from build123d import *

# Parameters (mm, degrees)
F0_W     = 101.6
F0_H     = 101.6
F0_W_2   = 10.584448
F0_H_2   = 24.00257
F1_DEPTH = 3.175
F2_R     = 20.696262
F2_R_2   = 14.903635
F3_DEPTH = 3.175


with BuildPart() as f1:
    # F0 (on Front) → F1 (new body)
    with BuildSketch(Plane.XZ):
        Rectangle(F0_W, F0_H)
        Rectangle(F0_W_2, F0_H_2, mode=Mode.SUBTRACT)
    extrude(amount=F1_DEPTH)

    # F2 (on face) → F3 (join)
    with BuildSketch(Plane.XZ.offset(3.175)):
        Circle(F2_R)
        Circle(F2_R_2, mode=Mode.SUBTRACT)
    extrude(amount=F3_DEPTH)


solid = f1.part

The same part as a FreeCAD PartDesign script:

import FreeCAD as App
import Part
import Sketcher

V = App.Vector
Q = App.Units.Quantity


def add_polygon(sketch, points):
    """Adds a closed chain of lines whose ends are joined by coincident constraints."""
    first, n = sketch.GeometryCount, len(points)
    for a, b in zip(points, points[1:] + points[:1]):
        sketch.addGeometry(Part.LineSegment(App.Vector(*a, 0), App.Vector(*b, 0)), False)
    for i in range(n):
        sketch.addConstraint(Sketcher.Constraint("Coincident", first + i, 2, first + (i + 1) % n, 1))

doc = App.newDocument("Part")
body = doc.addObject("PartDesign::Body", "Body")

sketch1 = body.newObject("Sketcher::SketchObject", "Sketch")
sketch1.AttachmentSupport = (doc.getObject("XZ_Plane"), [""])
sketch1.MapMode = "FlatFace"
add_polygon(sketch1, [(-51, 51), (-51, -51), (51, -51), (51, 51)])
add_polygon(sketch1, [(5, -12), (-5, -12), (-5, 12), (5, 12)])
sketch1.addConstraint([
    Sketcher.Constraint("Vertical", 0),
    Sketcher.Constraint("Horizontal", 1),
    Sketcher.Constraint("Vertical", 2),
    Sketcher.Constraint("Horizontal", 3),
    Sketcher.Constraint("Horizontal", 4),
    Sketcher.Constraint("Vertical", 5),
    Sketcher.Constraint("Horizontal", 6),
    Sketcher.Constraint("Vertical", 7),
    Sketcher.Constraint("Symmetric", 0, 2, 2, 2, -1, 1),
    Sketcher.Constraint("Symmetric", 4, 2, 6, 2, -1, 1),
    Sketcher.Constraint("Equal", 3, 0),
    Sketcher.Constraint("DistanceX", 1, 1, 1, 2, Q("4 in")),
    Sketcher.Constraint("DistanceY", 5, 1, 5, 2, 24.00257),
    Sketcher.Constraint("DistanceX", 4, 2, 4, 1, 10.584448),
])
pad1 = body.newObject("PartDesign::Pad", "Pad")
pad1.Profile = sketch1
pad1.Length = Q("0.125 in")

sketch2 = body.newObject("Sketcher::SketchObject", "Sketch001")
sketch2.AttachmentSupport = (doc.getObject("XZ_Plane"), [""])
sketch2.MapMode = "FlatFace"
sketch2.AttachmentOffset = App.Placement(V(0, 0, 0.125 * 25.4), App.Rotation())
sketch2.addGeometry([
    Part.Circle(V(0, 0, 0), V(0, 0, 1), 21),
    Part.Circle(V(0, 0, 0), V(0, 0, 1), 15),
], False)
sketch2.addConstraint([
    Sketcher.Constraint("Coincident", 0, 3, -1, 1),
    Sketcher.Constraint("Coincident", 1, 3, -1, 1),
    Sketcher.Constraint("Diameter", 1, 29.80727),
    Sketcher.Constraint("Diameter", 0, 41.392524),
])
pad2 = body.newObject("PartDesign::Pad", "Pad001")
pad2.Profile = sketch2
pad2.Length = Q("0.125 in")

doc.recompute()
